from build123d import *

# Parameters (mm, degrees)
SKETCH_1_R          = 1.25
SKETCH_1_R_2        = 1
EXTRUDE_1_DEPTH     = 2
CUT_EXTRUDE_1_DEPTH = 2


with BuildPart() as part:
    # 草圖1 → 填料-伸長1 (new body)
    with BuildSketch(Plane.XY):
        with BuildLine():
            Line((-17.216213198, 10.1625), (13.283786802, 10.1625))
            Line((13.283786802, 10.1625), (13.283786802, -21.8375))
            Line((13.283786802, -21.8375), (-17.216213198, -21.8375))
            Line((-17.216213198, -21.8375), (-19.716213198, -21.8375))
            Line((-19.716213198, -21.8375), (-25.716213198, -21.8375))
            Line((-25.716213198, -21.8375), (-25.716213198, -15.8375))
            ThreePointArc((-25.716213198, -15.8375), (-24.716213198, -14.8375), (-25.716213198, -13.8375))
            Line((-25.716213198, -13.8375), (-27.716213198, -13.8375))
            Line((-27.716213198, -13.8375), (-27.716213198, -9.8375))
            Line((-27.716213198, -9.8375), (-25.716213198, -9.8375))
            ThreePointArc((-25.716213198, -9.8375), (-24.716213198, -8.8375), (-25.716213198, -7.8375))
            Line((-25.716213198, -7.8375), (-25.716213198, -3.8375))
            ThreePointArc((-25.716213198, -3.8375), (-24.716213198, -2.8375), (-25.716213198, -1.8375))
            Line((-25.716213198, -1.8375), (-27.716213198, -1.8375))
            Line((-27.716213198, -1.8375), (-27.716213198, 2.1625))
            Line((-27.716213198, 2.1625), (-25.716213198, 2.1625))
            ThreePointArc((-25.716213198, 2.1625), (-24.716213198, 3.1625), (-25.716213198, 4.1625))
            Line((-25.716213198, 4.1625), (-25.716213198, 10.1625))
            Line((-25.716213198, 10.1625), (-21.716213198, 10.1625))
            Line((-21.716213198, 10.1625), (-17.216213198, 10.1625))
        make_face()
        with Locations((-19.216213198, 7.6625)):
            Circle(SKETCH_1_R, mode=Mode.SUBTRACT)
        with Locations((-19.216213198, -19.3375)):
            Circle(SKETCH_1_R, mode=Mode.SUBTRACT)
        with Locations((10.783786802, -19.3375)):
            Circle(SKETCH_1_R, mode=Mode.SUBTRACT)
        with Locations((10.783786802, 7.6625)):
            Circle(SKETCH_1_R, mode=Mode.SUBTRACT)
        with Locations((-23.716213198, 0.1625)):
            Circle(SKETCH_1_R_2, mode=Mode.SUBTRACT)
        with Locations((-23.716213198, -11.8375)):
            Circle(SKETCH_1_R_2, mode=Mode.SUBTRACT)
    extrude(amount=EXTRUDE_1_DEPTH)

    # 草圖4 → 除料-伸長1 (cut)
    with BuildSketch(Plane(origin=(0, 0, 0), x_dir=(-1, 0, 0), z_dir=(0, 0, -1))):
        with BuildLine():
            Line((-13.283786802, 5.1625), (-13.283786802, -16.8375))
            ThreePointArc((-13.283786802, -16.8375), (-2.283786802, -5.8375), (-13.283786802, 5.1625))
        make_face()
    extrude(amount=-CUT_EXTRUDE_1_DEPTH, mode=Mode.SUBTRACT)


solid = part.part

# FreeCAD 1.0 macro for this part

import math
import FreeCAD as App
import Part
import Sketcher
from FreeCAD import Vector

doc = App.newDocument("Part")
params = doc.addObject("Spreadsheet::Sheet", "Params")
for row, (alias, value) in enumerate([
    ("sketch1_diameter", "2 mm"),
    ("sketch1_diameter2", "2.5 mm"),
    ("sketch1_width", "39 mm"),
    ("sketch1_width2", "2 mm"),
    ("sketch1_height", "32 mm"),
    ("pad1_length", "2 mm"),
    ("sketch2_radius", "11 mm"),
    ("pocket1_length", "2 mm"),
], start=1):
    params.set(f"A{row}", alias)
    params.set(f"B{row}", "=" + value)
    params.setAlias(f"B{row}", alias)

body = doc.addObject("PartDesign::Body", "Body")

# Sketch on XY plane
sketch1 = doc.addObject("Sketcher::SketchObject", "Sketch")
body.addObject(sketch1)
sketch1.AttachmentSupport = (doc.XY_Plane, [""])
sketch1.MapMode = "FlatFace"
sketch1.addGeometry([
    Part.LineSegment(Vector(13.3, -21.8, 0), Vector(13.3, 10.2, 0)),  # 0
    Part.LineSegment(Vector(13.3, 10.2, 0), Vector(-25.7, 10.2, 0)),  # 1
    Part.LineSegment(Vector(-25.7, 10.2, 0), Vector(-25.7, 4.2, 0)),  # 2
    Part.ArcOfCircle(Part.Circle(Vector(-25.7, 3.2, 0), Vector(0, 0, 1), 1), math.radians(-90), math.radians(90)),  # 3
    Part.LineSegment(Vector(-25.7, 2.2, 0), Vector(-27.7, 2.2, 0)),  # 4
    Part.LineSegment(Vector(-27.7, 2.2, 0), Vector(-27.7, -1.8, 0)),  # 5
    Part.LineSegment(Vector(-27.7, -1.8, 0), Vector(-25.7, -1.8, 0)),  # 6
    Part.ArcOfCircle(Part.Circle(Vector(-25.7, -2.8, 0), Vector(0, 0, 1), 1), math.radians(-90), math.radians(90)),  # 7
    Part.LineSegment(Vector(-25.7, -3.8, 0), Vector(-25.7, -7.8, 0)),  # 8
    Part.ArcOfCircle(Part.Circle(Vector(-25.7, -8.8, 0), Vector(0, 0, 1), 1), math.radians(-90), math.radians(90)),  # 9
    Part.LineSegment(Vector(-25.7, -9.8, 0), Vector(-27.7, -9.8, 0)),  # 10
    Part.LineSegment(Vector(-27.7, -9.8, 0), Vector(-27.7, -13.8, 0)),  # 11
    Part.LineSegment(Vector(-27.7, -13.8, 0), Vector(-25.7, -13.8, 0)),  # 12
    Part.ArcOfCircle(Part.Circle(Vector(-25.7, -14.8, 0), Vector(0, 0, 1), 1), math.radians(-90), math.radians(90)),  # 13
    Part.LineSegment(Vector(-25.7, -15.8, 0), Vector(-25.7, -21.8, 0)),  # 14
    Part.LineSegment(Vector(-25.7, -21.8, 0), Vector(13.3, -21.8, 0)),  # 15
    Part.Circle(Vector(10.8, -19.3, 0), Vector(0, 0, 1), 1.2),  # 16
    Part.Circle(Vector(-19.2, -19.3, 0), Vector(0, 0, 1), 1.2),  # 17
    Part.Circle(Vector(-23.7, -11.8, 0), Vector(0, 0, 1), 1),  # 18
    Part.Circle(Vector(10.8, 7.7, 0), Vector(0, 0, 1), 1.2),  # 19
    Part.Circle(Vector(-23.7, 0.2, 0), Vector(0, 0, 1), 1),  # 20
    Part.Circle(Vector(-19.2, 7.7, 0), Vector(0, 0, 1), 1.2),  # 21
], False)
sketch1.addConstraint([
    Sketcher.Constraint("Coincident", 0, 2, 1, 1),
    Sketcher.Constraint("Coincident", 1, 2, 2, 1),
    Sketcher.Constraint("Coincident", 2, 2, 3, 2),
    Sketcher.Constraint("Tangent", 3, 1, 4, 1),
    Sketcher.Constraint("Coincident", 4, 2, 5, 1),
    Sketcher.Constraint("Coincident", 5, 2, 6, 1),
    Sketcher.Constraint("Tangent", 6, 2, 7, 2),
    Sketcher.Constraint("Coincident", 7, 1, 8, 1),
    Sketcher.Constraint("Coincident", 8, 2, 9, 2),
    Sketcher.Constraint("Tangent", 9, 1, 10, 1),
    Sketcher.Constraint("Coincident", 10, 2, 11, 1),
    Sketcher.Constraint("Coincident", 11, 2, 12, 1),
    Sketcher.Constraint("Tangent", 12, 2, 13, 2),
    Sketcher.Constraint("Coincident", 13, 1, 14, 1),
    Sketcher.Constraint("Coincident", 14, 2, 15, 1),
    Sketcher.Constraint("Coincident", 15, 2, 0, 1),
    Sketcher.Constraint("Vertical", 0),
    Sketcher.Constraint("Horizontal", 1),
    Sketcher.Constraint("Vertical", 2),
    Sketcher.Constraint("Horizontal", 4),
    Sketcher.Constraint("Vertical", 5),
    Sketcher.Constraint("Horizontal", 6),
    Sketcher.Constraint("Vertical", 8),
    Sketcher.Constraint("Horizontal", 10),
    Sketcher.Constraint("Vertical", 11),
    Sketcher.Constraint("Horizontal", 12),
    Sketcher.Constraint("Vertical", 14),
    Sketcher.Constraint("Horizontal", 15),
    Sketcher.Constraint("Equal", 3, 7),
    Sketcher.Constraint("Equal", 7, 9),
    Sketcher.Constraint("Equal", 9, 13),
    Sketcher.Constraint("Equal", 16, 17),
    Sketcher.Constraint("Equal", 13, 18),
    Sketcher.Constraint("Equal", 17, 19),
    Sketcher.Constraint("Equal", 18, 20),
    Sketcher.Constraint("Equal", 19, 21),
    Sketcher.Constraint("Horizontal", 16, 3, 17, 3),
    Sketcher.Constraint("Horizontal", 19, 3, 21, 3),
    Sketcher.Constraint("Vertical", 3, 3, 7, 3),
    Sketcher.Constraint("Vertical", 7, 3, 9, 3),
    Sketcher.Constraint("Vertical", 9, 3, 13, 3),
    Sketcher.Constraint("Vertical", 16, 3, 19, 3),
    Sketcher.Constraint("Vertical", 18, 3, 20, 3),
    Sketcher.Constraint("Vertical", 17, 3, 21, 3),
    Sketcher.Constraint("Vertical", 13, 3, 1, 2),
    Sketcher.Constraint("Vertical", 6, 2, 7, 1),
    Sketcher.Constraint("Vertical", 5, 2, 10, 2),
    Sketcher.Constraint("Vertical", 12, 2, 13, 1),
    Sketcher.Constraint("Equal", 5, 8),
    Sketcher.Constraint("Equal", 8, 11),
    Sketcher.Constraint("Equal", 2, 14),
    Sketcher.Constraint("Diameter", 18, 2.0),
    Sketcher.Constraint("Diameter", 16, 2.5),
    Sketcher.Constraint("DistanceX", 1, 2, 1, 1, 39.0),
    Sketcher.Constraint("DistanceX", 4, 2, 4, 1, 2.0),
    Sketcher.Constraint("DistanceY", 0, 1, 0, 2, 32.0),
    Sketcher.Constraint("DistanceY", 2, 2, 2, 1, 6.0),
    Sketcher.Constraint("DistanceX", 17, 3, 16, 3, 30.0),
    Sketcher.Constraint("DistanceX", 9, 3, 18, 3, 2.0),
    Sketcher.Constraint("DistanceY", 18, 3, 9, 3, 3.0),
    Sketcher.Constraint("DistanceY", 16, 3, 19, 3, 27.0),
    Sketcher.Constraint("DistanceY", 20, 3, 3, 3, 3.0),
    Sketcher.Constraint("DistanceX", 13, 3, 16, 3, 36.5),
    Sketcher.Constraint("DistanceY", 16, 3, 13, 3, 4.5),
    Sketcher.Constraint("DistanceY", -1, 1, 3, 3, 3.1625),
    Sketcher.Constraint("DistanceX", 3, 3, -1, 1, 25.716213),
])
sketch1.setExpression("Constraints[51]", "Params.sketch1_diameter")
sketch1.setExpression("Constraints[52]", "Params.sketch1_diameter2")
sketch1.setExpression("Constraints[53]", "Params.sketch1_width")
sketch1.setExpression("Constraints[54]", "Params.sketch1_width2")
sketch1.setExpression("Constraints[55]", "Params.sketch1_height")
pad1 = doc.addObject("PartDesign::Pad", "Pad")
body.addObject(pad1)
pad1.Profile = sketch1
pad1.setExpression("Length", "Params.pad1_length")

# Sketch on XY plane
sketch2 = doc.addObject("Sketcher::SketchObject", "Sketch001")
body.addObject(sketch2)
sketch2.AttachmentSupport = (doc.XY_Plane, [""])
sketch2.MapMode = "FlatFace"
sketch2.addGeometry([
    Part.LineSegment(Vector(13, 5, 0), Vector(13, -17, 0)),
    Part.ArcOfCircle(Part.Circle(Vector(13, -6, 0), Vector(0, 0, 1), 11), math.radians(90), math.radians(270)),
], False)
sketch2.addConstraint([
    Sketcher.Constraint("Coincident", 0, 1, 1, 1),
    Sketcher.Constraint("Coincident", 1, 2, 0, 2),
    Sketcher.Constraint("Vertical", 0),
    Sketcher.Constraint("Vertical", 1, 3, 0, 1),
    Sketcher.Constraint("Radius", 1, 11.0),
    Sketcher.Constraint("DistanceY", 1, 3, -1, 1, 5.8375),
    Sketcher.Constraint("DistanceX", -1, 1, 1, 3, 13.283787),
])
sketch2.setExpression("Constraints[4]", "Params.sketch2_radius")
pocket1 = doc.addObject("PartDesign::Pocket", "Pocket")
body.addObject(pocket1)
pocket1.Profile = sketch2
pocket1.setExpression("Length", "Params.pocket1_length")
pocket1.Reversed = True

doc.recompute()
